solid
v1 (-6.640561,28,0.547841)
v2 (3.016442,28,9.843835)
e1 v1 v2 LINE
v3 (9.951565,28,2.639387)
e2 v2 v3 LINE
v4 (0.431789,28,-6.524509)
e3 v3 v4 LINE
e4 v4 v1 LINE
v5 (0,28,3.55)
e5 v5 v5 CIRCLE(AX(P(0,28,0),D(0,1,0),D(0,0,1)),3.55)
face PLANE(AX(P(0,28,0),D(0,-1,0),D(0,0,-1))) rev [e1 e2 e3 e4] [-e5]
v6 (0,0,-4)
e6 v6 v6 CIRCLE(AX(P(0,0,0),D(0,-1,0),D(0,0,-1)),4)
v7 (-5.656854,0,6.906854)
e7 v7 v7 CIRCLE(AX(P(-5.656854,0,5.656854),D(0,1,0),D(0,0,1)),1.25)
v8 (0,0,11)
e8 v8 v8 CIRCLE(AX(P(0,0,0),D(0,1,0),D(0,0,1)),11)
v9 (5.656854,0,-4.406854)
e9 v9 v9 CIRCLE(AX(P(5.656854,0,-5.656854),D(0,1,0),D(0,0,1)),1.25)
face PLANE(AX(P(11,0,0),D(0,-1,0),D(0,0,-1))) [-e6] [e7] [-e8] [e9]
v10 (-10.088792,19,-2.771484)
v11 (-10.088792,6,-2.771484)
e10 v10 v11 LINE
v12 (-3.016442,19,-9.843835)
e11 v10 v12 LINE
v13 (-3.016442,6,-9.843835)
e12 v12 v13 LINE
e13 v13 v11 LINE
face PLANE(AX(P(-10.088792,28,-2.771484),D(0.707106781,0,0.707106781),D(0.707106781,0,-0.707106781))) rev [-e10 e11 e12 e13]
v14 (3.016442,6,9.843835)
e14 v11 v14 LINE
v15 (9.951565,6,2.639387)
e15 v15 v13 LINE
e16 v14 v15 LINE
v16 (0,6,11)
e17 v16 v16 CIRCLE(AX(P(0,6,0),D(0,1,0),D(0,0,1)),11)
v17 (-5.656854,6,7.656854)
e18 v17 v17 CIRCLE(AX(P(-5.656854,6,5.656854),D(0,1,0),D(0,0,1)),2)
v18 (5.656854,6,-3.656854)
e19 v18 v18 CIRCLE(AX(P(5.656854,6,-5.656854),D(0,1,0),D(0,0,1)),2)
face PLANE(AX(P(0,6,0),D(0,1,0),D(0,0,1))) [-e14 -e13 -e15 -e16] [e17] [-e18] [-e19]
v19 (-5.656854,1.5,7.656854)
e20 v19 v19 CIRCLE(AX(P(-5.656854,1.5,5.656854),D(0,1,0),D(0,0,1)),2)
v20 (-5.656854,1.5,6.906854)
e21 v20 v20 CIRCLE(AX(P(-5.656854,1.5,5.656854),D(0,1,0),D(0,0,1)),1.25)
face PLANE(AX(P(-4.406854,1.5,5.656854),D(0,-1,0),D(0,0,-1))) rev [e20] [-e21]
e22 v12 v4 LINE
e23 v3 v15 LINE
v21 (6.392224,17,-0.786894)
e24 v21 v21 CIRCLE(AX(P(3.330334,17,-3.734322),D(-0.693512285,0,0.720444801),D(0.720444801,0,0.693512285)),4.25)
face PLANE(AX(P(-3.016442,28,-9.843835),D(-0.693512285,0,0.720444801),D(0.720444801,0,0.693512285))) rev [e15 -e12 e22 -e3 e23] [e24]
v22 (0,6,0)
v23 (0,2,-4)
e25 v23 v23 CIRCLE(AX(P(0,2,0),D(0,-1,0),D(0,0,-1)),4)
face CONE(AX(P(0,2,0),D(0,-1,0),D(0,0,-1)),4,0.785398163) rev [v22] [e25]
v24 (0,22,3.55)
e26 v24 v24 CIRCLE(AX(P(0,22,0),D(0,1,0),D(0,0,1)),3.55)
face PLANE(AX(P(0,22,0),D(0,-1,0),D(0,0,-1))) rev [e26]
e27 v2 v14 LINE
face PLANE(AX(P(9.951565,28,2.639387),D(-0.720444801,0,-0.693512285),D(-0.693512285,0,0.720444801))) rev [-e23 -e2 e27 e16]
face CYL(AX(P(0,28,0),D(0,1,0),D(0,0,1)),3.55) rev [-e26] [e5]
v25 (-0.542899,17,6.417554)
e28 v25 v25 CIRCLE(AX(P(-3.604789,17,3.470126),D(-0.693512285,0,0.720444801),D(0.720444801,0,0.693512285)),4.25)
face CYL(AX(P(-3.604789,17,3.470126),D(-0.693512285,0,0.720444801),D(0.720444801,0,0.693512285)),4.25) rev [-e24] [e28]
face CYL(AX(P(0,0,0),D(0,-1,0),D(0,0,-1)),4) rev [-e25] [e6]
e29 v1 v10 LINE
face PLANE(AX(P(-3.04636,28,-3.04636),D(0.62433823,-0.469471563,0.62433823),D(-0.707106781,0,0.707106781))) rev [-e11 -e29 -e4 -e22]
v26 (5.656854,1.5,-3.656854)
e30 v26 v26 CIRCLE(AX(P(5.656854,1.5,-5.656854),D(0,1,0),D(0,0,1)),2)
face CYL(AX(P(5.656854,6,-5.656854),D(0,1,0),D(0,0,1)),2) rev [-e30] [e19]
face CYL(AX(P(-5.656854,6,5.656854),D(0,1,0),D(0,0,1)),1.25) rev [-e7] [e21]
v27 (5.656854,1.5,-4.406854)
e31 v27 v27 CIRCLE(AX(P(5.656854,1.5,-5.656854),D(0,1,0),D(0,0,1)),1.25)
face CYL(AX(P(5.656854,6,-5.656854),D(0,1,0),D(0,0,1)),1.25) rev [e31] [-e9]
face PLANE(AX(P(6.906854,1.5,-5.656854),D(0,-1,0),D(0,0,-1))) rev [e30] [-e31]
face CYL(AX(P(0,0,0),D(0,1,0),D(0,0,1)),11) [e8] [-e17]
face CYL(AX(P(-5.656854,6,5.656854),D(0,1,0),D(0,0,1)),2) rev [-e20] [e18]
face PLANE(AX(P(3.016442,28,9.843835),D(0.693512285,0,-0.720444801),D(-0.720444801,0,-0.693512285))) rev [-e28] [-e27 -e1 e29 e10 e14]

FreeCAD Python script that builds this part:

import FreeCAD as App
import Part
import Sketcher
from FreeCAD import Vector
Q = App.Units.Quantity


def edges_at(feature, points):
    """Names of the edges that pass closest to the given points."""
    edges = feature.Shape.Edges
    near = lambda p: min(range(len(edges)), key=lambda i: edges[i].distToShape(Part.Vertex(*p))[0])
    return sorted({f"Edge{near(p) + 1}" for p in points})


def add_polygon(sketch, points):
    """Adds a closed chain of lines whose ends are joined by coincident constraints."""
    first, n = sketch.GeometryCount, len(points)
    for a, b in zip(points, points[1:] + points[:1]):
        sketch.addGeometry(Part.LineSegment(App.Vector(*a, 0), App.Vector(*b, 0)), False)
    for i in range(n):
        sketch.addConstraint(Sketcher.Constraint("Coincident", first + i, 2, first + (i + 1) % n, 1))

doc = App.newDocument("Part")
params = doc.addObject("Spreadsheet::Sheet", "Params")
for row, (alias, value) in enumerate([
    ("sketch1_width", "11 mm"),
    ("sketch1_height", "6 mm"),
    ("revolution_angle", "360 deg"),
    ("sketch2_length", "10 mm"),
    ("sketch2_length2", "18 mm"),
    ("pad1_length", "22 mm"),
    ("sketch3_diameter", "7.1 mm"),
    ("hole_diameter", "7.1 mm"),
    ("hole_depth", "6 mm"),
    ("sketch4_diameter", "8.5 mm"),
    ("hole2_diameter", "8.5 mm"),
    ("sketch5_diameter", "2.5 mm"),
    ("hole3_diameter", "2.5 mm"),
    ("hole3_cbore_diameter", "4 mm"),
    ("hole3_cbore_depth", "4.5 mm"),
    ("sketch6_diameter", "8 mm"),
    ("hole4_diameter", "8 mm"),
    ("hole4_depth", "2 mm"),
    ("chamfer_size", "9 mm"),
    ("chamfer_size2", "4.785385 mm"),
], start=1):
    params.set(f"A{row}", alias)
    params.set(f"B{row}", "=" + value)
    params.setAlias(f"B{row}", alias)

body = doc.addObject("PartDesign::Body", "Body")

# Sketch on XY plane
sketch1 = body.newObject("Sketcher::SketchObject", "Sketch")
sketch1.AttachmentSupport = (doc.getObject("XY_Plane"), [""])
sketch1.MapMode = "FlatFace"
add_polygon(sketch1, [(11, 6), (11, 0), (0, 0), (0, 6)])  # lines 0-3
sketch1.addConstraint([
    Sketcher.Constraint("Vertical", 0),
    Sketcher.Constraint("Horizontal", 1),
    Sketcher.Constraint("Vertical", 2),
    Sketcher.Constraint("Horizontal", 3),
    Sketcher.Constraint("Coincident", 1, 2, -1, 1),
    Sketcher.Constraint("DistanceX", 1, 2, 1, 1, 11.0),
    Sketcher.Constraint("DistanceY", 0, 2, 0, 1, 6.0),
])
sketch1.setExpression("Constraints[9]", "Params.sketch1_width")
sketch1.setExpression("Constraints[10]", "Params.sketch1_height")
revolution = body.newObject("PartDesign::Revolution", "Revolution")
revolution.Profile = sketch1
revolution.ReferenceAxis = (sketch1, ["V_Axis"])
revolution.setExpression("Angle", "Params.revolution_angle")

# Sketch on XZ plane
sketch2 = body.newObject("Sketcher::SketchObject", "Sketch001")
sketch2.AttachmentSupport = (doc.getObject("XZ_Plane"), [""])
sketch2.MapMode = "FlatFace"
sketch2.AttachmentOffset = App.Placement(Vector(0, 0, -6), App.Rotation())
add_polygon(sketch2, [(3.016442, 9.843835), (9.951565, 2.639387), (-3.016442, -9.843835), (-10.088792, -2.771484)])  # lines 0-3
sketch2.addConstraint([
    Sketcher.Constraint("Symmetric", 1, 2, 3, 2, -1, 1),
    Sketcher.Constraint("Perpendicular", 0, 1),
    Sketcher.Constraint("Parallel", 1, 3),
    Sketcher.Constraint("Angle", 2, Q("135 deg")),
    Sketcher.Constraint("Distance", 0, 10.0),
    Sketcher.Constraint("Distance", 1, 18.0),
    Sketcher.Constraint("DistanceX", 1, 2, -1, 1, 3.016442),
])
sketch2.setExpression("Constraints[8]", "Params.sketch2_length")
sketch2.setExpression("Constraints[9]", "Params.sketch2_length2")
pad1 = body.newObject("PartDesign::Pad", "Pad")
pad1.Profile = sketch2
pad1.setExpression("Length", "Params.pad1_length")
pad1.Reversed = True

# Sketch on XZ plane
sketch3 = body.newObject("Sketcher::SketchObject", "Sketch002")
sketch3.AttachmentSupport = (doc.getObject("XZ_Plane"), [""])
sketch3.MapMode = "FlatFace"
sketch3.AttachmentOffset = App.Placement(Vector(0, 0, -28), App.Rotation())
sketch3.addGeometry(Part.Circle(Vector(0, 0, 0), Vector(0, 0, 1), 3.55), False)
sketch3.addConstraint([
    Sketcher.Constraint("Coincident", 0, 3, -1, 1),
    Sketcher.Constraint("Diameter", 0, 7.1),
])
sketch3.setExpression("Constraints[1]", "Params.sketch3_diameter")
doc.recompute()
hole = body.newObject("PartDesign::Hole", "Hole")
hole.Profile = sketch3
hole.ThreadType = "None"
hole.setExpression("Diameter", "Params.hole_diameter")
hole.DepthType = "Dimension"
hole.setExpression("Depth", "Params.hole_depth")
hole.DrillPoint = "Flat"
hole.Reversed = True

# Sketch on an angled plane
sketch4 = body.newObject("Sketcher::SketchObject", "Sketch003")
sketch4.Placement = App.Placement(Vector(-3.467561, 0, 3.602224), App.Rotation(Vector(0.720444801, 0, 0.693512285), Vector(0, 1.000000001, 0), Vector(-0.693512285, 0, 0.720444801), "ZXY"))
sketch4.addGeometry(Part.Circle(Vector(-0.190476, 17, 0), Vector(0, 0, 1), 4.25), False)
sketch4.addConstraint([
    Sketcher.Constraint("Diameter", 0, 8.5),
    Sketcher.Constraint("DistanceY", -1, 1, 0, 3, 17.0),
    Sketcher.Constraint("DistanceX", 0, 3, -1, 1, 0.190476),
])
sketch4.setExpression("Constraints[0]", "Params.sketch4_diameter")
doc.recompute()
hole2 = body.newObject("PartDesign::Hole", "Hole001")
hole2.Profile = sketch4
hole2.ThreadType = "None"
hole2.setExpression("Diameter", "Params.hole2_diameter")
hole2.DepthType = "ThroughAll"

# Sketch on XZ plane
sketch5 = body.newObject("Sketcher::SketchObject", "Sketch004")
sketch5.AttachmentSupport = (doc.getObject("XZ_Plane"), [""])
sketch5.MapMode = "FlatFace"
sketch5.AttachmentOffset = App.Placement(Vector(0, 0, -6), App.Rotation())
sketch5.addGeometry([
    Part.Circle(Vector(5.656854, -5.656854, 0), Vector(0, 0, 1), 1.25),
    Part.Circle(Vector(-5.656854, 5.656854, 0), Vector(0, 0, 1), 1.25),
], False)
sketch5.addConstraint([
    Sketcher.Constraint("Equal", 0, 1),
    Sketcher.Constraint("Symmetric", 0, 3, 1, 3, -1, 1),
    Sketcher.Constraint("Diameter", 0, 2.5),
    Sketcher.Constraint("DistanceX", 1, 3, 0, 3, 11.313708),
    Sketcher.Constraint("DistanceY", 0, 3, 1, 3, 11.313708),
])
sketch5.setExpression("Constraints[2]", "Params.sketch5_diameter")
doc.recompute()
hole3 = body.newObject("PartDesign::Hole", "Hole002")
hole3.Profile = sketch5
hole3.ThreadType = "None"
hole3.setExpression("Diameter", "Params.hole3_diameter")
hole3.DepthType = "ThroughAll"
hole3.HoleCutType = "Counterbore"
hole3.setExpression("HoleCutDiameter", "Params.hole3_cbore_diameter")
hole3.setExpression("HoleCutDepth", "Params.hole3_cbore_depth")
hole3.Reversed = True

# Sketch on XZ plane
sketch6 = body.newObject("Sketcher::SketchObject", "Sketch005")
sketch6.AttachmentSupport = (doc.getObject("XZ_Plane"), [""])
sketch6.MapMode = "FlatFace"
sketch6.addGeometry(Part.Circle(Vector(0, 0, 0), Vector(0, 0, 1), 4), False)
sketch6.addConstraint([
    Sketcher.Constraint("Coincident", 0, 3, -1, 1),
    Sketcher.Constraint("Diameter", 0, 8.0),
])
sketch6.setExpression("Constraints[1]", "Params.sketch6_diameter")
doc.recompute()
hole4 = body.newObject("PartDesign::Hole", "Hole003")
hole4.Profile = sketch6
hole4.ThreadType = "None"
hole4.setExpression("Diameter", "Params.hole4_diameter")
hole4.DepthType = "Dimension"
hole4.setExpression("Depth", "Params.hole4_depth")
hole4.DrillPoint = "Angled"
hole4.DrillPointAngle = 90
doc.recompute()

chamfer = body.newObject("PartDesign::Chamfer", "Chamfer")
chamfer.Base = (hole4, edges_at(hole4, [(-6.553, 28, -6.308)]))
chamfer.ChamferType = "Two distances"
chamfer.setExpression("Size", "Params.chamfer_size")
chamfer.setExpression("Size2", "Params.chamfer_size2")

doc.recompute()
